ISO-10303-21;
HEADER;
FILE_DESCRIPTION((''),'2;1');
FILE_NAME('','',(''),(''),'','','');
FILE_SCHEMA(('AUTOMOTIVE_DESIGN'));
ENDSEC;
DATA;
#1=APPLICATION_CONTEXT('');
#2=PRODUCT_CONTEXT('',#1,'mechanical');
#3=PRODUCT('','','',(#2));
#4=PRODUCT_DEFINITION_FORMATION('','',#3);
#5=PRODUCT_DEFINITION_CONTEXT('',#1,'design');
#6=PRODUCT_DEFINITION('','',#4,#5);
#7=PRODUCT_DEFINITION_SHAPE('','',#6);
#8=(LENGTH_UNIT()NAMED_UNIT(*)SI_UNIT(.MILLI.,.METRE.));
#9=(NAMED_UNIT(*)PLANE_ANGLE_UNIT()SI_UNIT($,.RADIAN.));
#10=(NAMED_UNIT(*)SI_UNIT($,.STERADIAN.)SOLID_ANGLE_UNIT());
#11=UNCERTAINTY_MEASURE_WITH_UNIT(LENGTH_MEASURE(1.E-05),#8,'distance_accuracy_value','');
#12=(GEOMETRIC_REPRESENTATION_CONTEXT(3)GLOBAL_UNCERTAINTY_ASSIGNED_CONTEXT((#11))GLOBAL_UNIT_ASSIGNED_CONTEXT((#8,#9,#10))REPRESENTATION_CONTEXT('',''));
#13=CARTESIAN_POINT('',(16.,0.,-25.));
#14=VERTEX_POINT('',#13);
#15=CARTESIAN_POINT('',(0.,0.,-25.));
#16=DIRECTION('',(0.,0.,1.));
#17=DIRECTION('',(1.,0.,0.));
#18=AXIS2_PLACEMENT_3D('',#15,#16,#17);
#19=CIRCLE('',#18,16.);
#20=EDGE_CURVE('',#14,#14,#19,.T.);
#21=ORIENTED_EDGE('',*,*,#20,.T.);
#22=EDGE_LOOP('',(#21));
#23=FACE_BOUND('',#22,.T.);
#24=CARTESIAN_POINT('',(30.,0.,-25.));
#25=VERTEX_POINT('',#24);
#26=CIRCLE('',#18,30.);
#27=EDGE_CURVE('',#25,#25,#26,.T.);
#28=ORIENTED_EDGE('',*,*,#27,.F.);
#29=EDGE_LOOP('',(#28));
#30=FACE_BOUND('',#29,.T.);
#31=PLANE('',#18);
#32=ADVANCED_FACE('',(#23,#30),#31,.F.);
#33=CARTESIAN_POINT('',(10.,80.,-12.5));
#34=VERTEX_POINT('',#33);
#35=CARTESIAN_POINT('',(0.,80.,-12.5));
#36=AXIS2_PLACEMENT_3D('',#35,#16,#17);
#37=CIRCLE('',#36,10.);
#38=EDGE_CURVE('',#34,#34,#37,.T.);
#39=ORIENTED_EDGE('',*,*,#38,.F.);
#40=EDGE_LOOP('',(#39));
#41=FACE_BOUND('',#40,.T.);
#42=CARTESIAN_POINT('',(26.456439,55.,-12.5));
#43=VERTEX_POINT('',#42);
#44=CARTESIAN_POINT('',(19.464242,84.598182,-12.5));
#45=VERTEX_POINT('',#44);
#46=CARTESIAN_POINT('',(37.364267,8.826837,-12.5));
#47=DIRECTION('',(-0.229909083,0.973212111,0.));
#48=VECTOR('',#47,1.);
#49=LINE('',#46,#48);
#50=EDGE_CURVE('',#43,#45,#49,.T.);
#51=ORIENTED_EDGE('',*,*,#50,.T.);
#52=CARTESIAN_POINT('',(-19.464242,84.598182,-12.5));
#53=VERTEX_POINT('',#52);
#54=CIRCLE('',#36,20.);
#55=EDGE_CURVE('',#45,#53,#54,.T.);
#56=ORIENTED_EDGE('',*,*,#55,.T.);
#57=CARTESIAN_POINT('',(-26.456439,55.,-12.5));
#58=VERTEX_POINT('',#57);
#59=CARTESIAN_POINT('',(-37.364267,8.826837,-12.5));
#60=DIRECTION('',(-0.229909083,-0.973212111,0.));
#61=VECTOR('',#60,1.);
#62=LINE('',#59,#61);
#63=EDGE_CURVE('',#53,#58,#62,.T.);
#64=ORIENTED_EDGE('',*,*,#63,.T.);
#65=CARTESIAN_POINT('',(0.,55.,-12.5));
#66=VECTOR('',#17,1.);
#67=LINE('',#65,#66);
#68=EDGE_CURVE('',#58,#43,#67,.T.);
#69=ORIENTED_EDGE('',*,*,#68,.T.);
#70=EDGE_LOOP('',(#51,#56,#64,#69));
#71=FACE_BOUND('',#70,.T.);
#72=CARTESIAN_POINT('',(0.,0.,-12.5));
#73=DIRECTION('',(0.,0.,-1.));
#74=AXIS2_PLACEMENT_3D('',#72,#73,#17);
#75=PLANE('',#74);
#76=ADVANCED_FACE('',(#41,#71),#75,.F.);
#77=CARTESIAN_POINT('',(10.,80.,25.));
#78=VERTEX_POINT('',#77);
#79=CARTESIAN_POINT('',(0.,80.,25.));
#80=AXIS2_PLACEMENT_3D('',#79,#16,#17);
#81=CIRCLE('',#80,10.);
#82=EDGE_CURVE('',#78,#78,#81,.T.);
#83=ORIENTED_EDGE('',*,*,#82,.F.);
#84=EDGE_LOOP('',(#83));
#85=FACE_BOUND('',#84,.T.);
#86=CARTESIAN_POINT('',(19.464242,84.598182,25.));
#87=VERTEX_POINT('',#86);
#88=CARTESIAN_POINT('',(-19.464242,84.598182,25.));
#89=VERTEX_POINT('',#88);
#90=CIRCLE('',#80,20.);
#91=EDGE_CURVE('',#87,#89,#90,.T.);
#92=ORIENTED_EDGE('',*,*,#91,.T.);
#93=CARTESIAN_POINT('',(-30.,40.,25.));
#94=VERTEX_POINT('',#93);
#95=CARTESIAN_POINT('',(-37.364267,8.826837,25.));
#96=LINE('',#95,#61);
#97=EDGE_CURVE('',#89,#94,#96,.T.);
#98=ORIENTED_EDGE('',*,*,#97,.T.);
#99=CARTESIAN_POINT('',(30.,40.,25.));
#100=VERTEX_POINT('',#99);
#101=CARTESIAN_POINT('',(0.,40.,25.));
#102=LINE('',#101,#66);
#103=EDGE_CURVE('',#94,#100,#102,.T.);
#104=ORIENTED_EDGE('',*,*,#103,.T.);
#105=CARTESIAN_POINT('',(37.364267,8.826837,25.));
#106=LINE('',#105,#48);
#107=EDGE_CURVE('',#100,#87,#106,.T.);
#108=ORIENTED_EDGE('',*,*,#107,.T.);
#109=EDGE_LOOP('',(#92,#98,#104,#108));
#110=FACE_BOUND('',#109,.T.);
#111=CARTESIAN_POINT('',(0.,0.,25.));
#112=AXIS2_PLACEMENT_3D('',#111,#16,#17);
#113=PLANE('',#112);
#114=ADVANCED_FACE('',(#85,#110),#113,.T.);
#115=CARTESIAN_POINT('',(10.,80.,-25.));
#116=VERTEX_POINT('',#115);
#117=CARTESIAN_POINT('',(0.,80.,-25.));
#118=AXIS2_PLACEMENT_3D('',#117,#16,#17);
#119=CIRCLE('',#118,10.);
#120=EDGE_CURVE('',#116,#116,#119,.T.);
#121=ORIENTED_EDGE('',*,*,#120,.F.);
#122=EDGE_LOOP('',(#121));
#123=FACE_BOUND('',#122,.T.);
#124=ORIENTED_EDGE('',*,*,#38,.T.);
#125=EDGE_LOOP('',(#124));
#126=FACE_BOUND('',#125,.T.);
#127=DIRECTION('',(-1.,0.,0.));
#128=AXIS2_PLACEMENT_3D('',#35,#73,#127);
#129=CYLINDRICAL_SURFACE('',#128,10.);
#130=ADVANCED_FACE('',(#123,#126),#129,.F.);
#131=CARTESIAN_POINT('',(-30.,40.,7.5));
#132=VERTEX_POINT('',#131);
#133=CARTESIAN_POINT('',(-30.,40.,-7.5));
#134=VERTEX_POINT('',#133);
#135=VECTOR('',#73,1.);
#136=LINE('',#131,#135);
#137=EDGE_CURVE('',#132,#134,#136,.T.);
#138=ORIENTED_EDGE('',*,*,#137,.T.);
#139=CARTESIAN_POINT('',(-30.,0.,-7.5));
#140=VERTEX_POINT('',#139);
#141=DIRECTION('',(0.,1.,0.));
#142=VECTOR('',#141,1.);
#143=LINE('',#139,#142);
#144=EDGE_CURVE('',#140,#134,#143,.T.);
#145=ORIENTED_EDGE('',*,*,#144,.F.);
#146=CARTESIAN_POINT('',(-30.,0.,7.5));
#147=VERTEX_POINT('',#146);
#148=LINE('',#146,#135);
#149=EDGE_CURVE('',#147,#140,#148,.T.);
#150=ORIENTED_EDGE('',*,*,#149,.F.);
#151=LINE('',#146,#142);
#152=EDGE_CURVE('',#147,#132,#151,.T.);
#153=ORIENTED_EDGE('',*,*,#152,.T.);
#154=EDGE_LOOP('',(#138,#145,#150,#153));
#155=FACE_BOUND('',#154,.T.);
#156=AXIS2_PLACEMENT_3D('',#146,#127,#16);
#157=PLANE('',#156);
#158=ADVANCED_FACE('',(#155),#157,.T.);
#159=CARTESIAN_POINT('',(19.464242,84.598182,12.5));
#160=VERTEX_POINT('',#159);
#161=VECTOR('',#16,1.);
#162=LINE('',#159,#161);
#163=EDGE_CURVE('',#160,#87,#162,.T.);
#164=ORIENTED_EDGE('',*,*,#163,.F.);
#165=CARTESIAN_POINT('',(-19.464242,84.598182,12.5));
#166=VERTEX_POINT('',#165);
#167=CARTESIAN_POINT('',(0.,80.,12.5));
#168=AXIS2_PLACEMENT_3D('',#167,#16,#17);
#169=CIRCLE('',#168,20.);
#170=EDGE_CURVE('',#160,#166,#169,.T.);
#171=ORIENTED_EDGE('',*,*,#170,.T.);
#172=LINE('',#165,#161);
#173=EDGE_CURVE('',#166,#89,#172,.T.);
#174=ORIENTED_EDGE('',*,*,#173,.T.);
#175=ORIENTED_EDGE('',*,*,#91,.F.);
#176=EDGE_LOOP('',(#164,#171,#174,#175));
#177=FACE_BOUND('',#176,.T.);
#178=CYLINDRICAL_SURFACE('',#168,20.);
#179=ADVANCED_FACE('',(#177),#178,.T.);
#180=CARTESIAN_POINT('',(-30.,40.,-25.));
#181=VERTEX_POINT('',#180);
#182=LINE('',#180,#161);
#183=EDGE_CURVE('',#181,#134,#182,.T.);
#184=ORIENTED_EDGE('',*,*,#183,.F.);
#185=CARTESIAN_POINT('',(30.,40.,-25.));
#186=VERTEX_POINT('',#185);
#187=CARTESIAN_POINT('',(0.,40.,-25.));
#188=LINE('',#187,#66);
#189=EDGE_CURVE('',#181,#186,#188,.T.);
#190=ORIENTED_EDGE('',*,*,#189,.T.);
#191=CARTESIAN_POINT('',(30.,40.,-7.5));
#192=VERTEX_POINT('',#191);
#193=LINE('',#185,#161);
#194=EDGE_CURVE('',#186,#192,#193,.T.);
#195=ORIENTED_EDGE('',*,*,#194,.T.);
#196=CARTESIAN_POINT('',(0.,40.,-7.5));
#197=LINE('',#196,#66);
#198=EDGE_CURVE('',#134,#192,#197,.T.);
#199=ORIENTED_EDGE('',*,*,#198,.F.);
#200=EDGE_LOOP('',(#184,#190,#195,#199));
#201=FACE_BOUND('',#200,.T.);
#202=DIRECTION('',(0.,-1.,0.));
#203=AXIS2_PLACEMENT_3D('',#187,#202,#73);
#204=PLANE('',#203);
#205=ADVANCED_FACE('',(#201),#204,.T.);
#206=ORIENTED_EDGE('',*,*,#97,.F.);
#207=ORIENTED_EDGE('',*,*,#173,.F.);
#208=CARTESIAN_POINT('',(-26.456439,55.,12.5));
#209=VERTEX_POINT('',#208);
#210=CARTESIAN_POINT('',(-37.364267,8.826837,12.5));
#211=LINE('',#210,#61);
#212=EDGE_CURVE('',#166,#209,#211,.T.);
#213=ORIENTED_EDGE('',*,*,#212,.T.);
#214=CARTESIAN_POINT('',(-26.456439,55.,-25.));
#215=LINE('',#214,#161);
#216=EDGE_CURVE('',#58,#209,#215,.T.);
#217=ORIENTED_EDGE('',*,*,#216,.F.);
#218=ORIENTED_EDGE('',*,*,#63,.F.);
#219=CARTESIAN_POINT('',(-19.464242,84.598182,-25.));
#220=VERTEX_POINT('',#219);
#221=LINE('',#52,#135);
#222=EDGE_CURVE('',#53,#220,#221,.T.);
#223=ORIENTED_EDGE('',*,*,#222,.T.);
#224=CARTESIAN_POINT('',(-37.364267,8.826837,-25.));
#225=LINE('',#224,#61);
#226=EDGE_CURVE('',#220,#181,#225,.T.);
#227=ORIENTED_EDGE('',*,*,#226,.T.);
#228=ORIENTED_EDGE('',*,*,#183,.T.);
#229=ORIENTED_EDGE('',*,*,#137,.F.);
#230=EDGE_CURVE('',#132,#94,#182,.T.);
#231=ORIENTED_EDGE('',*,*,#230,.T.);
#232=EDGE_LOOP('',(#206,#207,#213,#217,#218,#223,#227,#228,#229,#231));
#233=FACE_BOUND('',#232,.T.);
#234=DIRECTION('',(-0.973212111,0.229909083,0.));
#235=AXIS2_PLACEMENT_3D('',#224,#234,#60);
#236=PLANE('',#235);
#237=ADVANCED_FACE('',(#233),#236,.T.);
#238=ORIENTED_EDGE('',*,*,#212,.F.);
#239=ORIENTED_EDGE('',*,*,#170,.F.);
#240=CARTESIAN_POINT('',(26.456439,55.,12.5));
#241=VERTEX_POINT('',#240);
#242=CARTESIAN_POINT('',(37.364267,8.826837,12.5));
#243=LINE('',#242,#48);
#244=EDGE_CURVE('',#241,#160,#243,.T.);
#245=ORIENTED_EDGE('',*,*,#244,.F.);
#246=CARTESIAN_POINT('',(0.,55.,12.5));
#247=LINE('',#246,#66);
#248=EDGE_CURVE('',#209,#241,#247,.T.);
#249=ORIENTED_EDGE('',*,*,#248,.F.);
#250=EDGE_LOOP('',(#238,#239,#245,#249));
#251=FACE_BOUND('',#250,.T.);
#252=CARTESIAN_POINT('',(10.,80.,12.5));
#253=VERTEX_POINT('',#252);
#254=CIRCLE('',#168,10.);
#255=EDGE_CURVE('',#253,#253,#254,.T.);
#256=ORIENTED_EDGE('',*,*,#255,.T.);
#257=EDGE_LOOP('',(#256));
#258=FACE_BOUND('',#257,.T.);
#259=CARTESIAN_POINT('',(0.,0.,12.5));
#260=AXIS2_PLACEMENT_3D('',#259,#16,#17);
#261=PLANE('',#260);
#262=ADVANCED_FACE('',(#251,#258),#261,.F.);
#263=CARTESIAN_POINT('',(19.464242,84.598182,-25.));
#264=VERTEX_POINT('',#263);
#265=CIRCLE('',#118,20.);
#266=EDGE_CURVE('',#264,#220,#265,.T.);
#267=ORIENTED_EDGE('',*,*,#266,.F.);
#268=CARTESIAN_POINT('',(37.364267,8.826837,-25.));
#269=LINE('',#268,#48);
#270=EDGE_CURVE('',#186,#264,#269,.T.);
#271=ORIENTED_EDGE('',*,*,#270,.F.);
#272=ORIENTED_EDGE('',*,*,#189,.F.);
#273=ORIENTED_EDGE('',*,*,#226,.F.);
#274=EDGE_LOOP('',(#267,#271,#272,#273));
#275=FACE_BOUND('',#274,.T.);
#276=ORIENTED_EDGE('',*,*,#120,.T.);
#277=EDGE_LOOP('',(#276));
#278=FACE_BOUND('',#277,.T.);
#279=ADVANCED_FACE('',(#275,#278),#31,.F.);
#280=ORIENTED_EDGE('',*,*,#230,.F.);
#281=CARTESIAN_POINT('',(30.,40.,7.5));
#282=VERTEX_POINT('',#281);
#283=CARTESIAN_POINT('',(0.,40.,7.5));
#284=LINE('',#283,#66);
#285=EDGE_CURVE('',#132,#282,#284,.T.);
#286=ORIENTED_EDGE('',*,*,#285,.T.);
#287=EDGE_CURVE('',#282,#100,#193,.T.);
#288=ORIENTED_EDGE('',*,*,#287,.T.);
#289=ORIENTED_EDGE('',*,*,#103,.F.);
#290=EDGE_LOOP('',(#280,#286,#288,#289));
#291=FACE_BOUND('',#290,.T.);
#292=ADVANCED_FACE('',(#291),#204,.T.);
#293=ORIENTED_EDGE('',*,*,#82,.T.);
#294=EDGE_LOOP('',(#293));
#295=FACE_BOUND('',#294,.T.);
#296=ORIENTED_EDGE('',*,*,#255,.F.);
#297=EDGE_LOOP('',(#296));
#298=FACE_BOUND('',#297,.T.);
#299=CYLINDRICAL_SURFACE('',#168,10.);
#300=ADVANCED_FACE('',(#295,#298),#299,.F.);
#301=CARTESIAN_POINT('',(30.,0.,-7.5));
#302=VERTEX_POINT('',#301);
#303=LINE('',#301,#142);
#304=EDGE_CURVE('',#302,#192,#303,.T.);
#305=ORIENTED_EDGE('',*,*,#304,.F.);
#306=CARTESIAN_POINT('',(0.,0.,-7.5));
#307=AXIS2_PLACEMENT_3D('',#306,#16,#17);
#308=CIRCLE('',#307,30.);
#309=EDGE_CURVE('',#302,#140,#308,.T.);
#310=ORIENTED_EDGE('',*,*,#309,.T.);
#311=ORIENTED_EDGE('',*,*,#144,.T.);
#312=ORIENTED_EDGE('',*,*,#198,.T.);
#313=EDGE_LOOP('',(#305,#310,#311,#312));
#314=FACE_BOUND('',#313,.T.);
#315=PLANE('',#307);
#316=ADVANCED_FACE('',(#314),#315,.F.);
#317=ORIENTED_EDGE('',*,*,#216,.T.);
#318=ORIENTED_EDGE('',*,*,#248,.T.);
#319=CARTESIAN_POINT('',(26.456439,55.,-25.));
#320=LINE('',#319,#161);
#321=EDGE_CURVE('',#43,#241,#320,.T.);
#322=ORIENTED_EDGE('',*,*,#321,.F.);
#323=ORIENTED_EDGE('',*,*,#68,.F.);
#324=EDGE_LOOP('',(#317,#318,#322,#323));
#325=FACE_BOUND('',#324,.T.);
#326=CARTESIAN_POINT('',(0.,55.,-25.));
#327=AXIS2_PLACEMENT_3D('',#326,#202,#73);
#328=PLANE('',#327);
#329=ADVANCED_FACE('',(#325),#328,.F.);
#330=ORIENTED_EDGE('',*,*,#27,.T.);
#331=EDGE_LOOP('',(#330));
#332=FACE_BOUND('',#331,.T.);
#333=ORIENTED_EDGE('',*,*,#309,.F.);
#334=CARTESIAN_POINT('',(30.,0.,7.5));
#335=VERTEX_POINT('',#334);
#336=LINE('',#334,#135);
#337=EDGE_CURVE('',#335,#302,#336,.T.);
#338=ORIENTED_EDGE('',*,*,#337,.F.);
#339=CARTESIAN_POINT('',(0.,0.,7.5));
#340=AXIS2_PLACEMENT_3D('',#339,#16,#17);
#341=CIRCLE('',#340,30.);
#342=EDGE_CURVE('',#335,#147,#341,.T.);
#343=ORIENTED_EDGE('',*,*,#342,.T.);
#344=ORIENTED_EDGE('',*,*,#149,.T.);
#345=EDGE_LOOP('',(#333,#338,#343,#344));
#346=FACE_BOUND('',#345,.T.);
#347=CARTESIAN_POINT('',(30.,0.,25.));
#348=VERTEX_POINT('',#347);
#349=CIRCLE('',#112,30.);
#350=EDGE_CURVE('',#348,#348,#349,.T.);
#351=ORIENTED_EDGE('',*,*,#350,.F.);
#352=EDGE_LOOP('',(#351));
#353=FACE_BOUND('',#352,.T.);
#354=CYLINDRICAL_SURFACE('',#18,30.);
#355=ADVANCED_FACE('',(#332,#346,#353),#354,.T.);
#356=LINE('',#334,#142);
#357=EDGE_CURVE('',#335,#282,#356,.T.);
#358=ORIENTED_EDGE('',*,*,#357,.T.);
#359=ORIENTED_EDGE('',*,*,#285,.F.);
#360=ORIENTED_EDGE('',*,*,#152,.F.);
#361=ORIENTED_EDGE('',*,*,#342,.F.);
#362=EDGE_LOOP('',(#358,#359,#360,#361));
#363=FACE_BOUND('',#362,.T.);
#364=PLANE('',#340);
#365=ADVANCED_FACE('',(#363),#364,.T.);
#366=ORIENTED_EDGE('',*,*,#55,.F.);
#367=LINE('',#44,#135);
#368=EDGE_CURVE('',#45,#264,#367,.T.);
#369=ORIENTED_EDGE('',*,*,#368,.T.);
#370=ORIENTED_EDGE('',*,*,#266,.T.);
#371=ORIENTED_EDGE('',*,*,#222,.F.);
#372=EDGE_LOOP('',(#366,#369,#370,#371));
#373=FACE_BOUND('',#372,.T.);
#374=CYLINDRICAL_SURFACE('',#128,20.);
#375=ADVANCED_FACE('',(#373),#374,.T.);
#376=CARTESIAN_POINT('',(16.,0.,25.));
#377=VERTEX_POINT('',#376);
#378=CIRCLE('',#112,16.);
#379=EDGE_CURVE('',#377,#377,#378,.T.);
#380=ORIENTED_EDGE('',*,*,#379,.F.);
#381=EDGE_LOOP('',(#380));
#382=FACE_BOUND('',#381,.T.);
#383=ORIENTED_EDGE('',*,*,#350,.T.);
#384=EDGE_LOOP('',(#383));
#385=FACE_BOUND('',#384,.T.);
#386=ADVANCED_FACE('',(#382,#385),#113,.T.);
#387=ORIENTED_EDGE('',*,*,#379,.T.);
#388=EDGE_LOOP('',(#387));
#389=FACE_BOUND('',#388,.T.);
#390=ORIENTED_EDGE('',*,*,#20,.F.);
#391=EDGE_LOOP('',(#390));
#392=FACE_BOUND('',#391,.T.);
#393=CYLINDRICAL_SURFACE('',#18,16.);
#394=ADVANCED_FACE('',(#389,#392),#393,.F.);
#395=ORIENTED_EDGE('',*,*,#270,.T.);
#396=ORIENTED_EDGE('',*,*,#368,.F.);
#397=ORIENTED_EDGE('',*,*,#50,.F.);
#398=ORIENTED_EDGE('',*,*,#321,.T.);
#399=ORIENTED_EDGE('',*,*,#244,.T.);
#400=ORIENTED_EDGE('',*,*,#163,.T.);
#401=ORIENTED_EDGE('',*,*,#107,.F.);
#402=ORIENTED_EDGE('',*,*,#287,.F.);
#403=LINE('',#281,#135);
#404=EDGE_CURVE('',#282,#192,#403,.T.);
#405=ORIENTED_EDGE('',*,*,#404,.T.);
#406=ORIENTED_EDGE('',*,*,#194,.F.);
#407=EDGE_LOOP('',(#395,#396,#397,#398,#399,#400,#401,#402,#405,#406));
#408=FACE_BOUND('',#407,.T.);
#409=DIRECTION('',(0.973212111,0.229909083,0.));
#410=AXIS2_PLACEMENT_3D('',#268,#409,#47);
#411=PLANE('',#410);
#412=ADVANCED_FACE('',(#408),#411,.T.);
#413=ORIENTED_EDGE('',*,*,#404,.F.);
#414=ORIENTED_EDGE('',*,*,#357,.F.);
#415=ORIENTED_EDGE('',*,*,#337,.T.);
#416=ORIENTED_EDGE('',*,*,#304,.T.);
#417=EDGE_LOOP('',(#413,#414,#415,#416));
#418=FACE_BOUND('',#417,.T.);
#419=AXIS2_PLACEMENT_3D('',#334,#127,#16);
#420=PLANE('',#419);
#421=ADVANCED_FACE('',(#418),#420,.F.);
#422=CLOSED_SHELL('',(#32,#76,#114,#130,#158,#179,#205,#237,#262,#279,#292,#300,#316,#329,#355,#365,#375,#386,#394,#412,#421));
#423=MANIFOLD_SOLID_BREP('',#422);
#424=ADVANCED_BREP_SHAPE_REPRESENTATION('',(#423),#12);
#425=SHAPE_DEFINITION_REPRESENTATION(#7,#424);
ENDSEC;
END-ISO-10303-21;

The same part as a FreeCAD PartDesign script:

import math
import FreeCAD as App
import Part
import Sketcher

V = App.Vector

doc = App.newDocument("Part")
params = doc.addObject("Spreadsheet::Sheet", "Params")
for row, (alias, value) in enumerate([
    ("sketch1_diameter", "60 mm"),
    ("sketch1_diameter2", "32 mm"),
    ("pad1_length", "50 mm"),
    ("sketch2_radius", "30 mm"),
    ("sketch2_height", "40 mm"),
    ("pad2_length", "15 mm"),
    ("sketch3_width", "60 mm"),
    ("pad3_length", "50 mm"),
    ("sketch4_diameter", "20 mm"),
    ("sketch4_radius", "20 mm"),
    ("sketch4_width", "60 mm"),
    ("pad4_length", "12.5 mm"),
], start=1):
    params.set(f"A{row}", alias)
    params.set(f"B{row}", "=" + value)
    params.setAlias(f"B{row}", alias)

body = doc.addObject("PartDesign::Body", "Body")

sketch1 = body.newObject("Sketcher::SketchObject", "Sketch")
sketch1.AttachmentSupport = (doc.getObject("XY_Plane"), [""])
sketch1.MapMode = "FlatFace"
sketch1.addGeometry([
    Part.Circle(V(0, 0, 0), V(0, 0, 1), 30),
    Part.Circle(V(0, 0, 0), V(0, 0, 1), 16),
], False)
sketch1.addConstraint([
    Sketcher.Constraint("Coincident", 0, 3, -1, 1),
    Sketcher.Constraint("Coincident", 1, 3, -1, 1),
    Sketcher.Constraint("Diameter", 0, 60.0),
    Sketcher.Constraint("Diameter", 1, 32.0),
])
sketch1.setExpression("Constraints[2]", "Params.sketch1_diameter")
sketch1.setExpression("Constraints[3]", "Params.sketch1_diameter2")
pad1 = body.newObject("PartDesign::Pad", "Pad")
pad1.Profile = sketch1
pad1.setExpression("Length", "Params.pad1_length")
pad1.Midplane = True

sketch2 = body.newObject("Sketcher::SketchObject", "Sketch001")
sketch2.AttachmentSupport = (doc.getObject("XY_Plane"), [""])
sketch2.MapMode = "FlatFace"
sketch2.addGeometry([
    Part.ArcOfCircle(Part.Circle(V(0, 0, 0), V(0, 0, 1), 30), math.radians(90), math.radians(180)),
    Part.ArcOfCircle(Part.Circle(V(0, 0, 0), V(0, 0, 1), 30), math.radians(0), math.radians(90)),
    Part.LineSegment(V(30, 0, 0), V(30, 40, 0)),
    Part.LineSegment(V(30, 40, 0), V(-30, 40, 0)),
    Part.LineSegment(V(-30, 40, 0), V(-30, 0, 0)),
], False)
sketch2.addConstraint([
    Sketcher.Constraint("Tangent", 0, 1, 1, 2),
    Sketcher.Constraint("Tangent", 1, 1, 2, 1),
    Sketcher.Constraint("Coincident", 2, 2, 3, 1),
    Sketcher.Constraint("Coincident", 3, 2, 4, 1),
    Sketcher.Constraint("Tangent", 4, 2, 0, 2),
    Sketcher.Constraint("Vertical", 2),
    Sketcher.Constraint("Horizontal", 3),
    Sketcher.Constraint("Vertical", 4),
    Sketcher.Constraint("Coincident", 0, 3, -1, 1),
    Sketcher.Constraint("Equal", 0, 1),
    Sketcher.Constraint("PointOnObject", 0, 1, -2),
    Sketcher.Constraint("Radius", 0, 30.0),
    Sketcher.Constraint("DistanceY", 2, 1, 2, 2, 40.0),
])
sketch2.setExpression("Constraints[11]", "Params.sketch2_radius")
sketch2.setExpression("Constraints[12]", "Params.sketch2_height")
pad2 = body.newObject("PartDesign::Pad", "Pad001")
pad2.Profile = sketch2
pad2.setExpression("Length", "Params.pad2_length")
pad2.Midplane = True

sketch3 = body.newObject("Sketcher::SketchObject", "Sketch002")
sketch3.AttachmentSupport = (doc.getObject("XY_Plane"), [""])
sketch3.MapMode = "FlatFace"
sketch3.AttachmentOffset = App.Placement(V(0, 0, 25), App.Rotation())
sketch3.addGeometry([
    Part.LineSegment(V(-30, 40, 0), V(30, 40, 0)),
    Part.LineSegment(V(30, 40, 0), V(26.456439, 55, 0)),
    Part.LineSegment(V(26.456439, 55, 0), V(-26.456439, 55, 0)),
    Part.LineSegment(V(-26.456439, 55, 0), V(-30, 40, 0)),
], False)
sketch3.addConstraint([
    Sketcher.Constraint("Coincident", 0, 2, 1, 1),
    Sketcher.Constraint("Coincident", 1, 2, 2, 1),
    Sketcher.Constraint("Coincident", 2, 2, 3, 1),
    Sketcher.Constraint("Coincident", 3, 2, 0, 1),
    Sketcher.Constraint("Horizontal", 0),
    Sketcher.Constraint("Horizontal", 2),
    Sketcher.Constraint("Equal", 1, 3),
    Sketcher.Constraint("DistanceX", 0, 1, 0, 2, 60.0),
    Sketcher.Constraint("DistanceX", -1, 1, 0, 2, 30.0),
    Sketcher.Constraint("DistanceY", -1, 1, 0, 2, 40.0),
    Sketcher.Constraint("DistanceY", -1, 1, 1, 2, 55.0),
    Sketcher.Constraint("DistanceX", 2, 2, 2, 1, 52.912878),
])
sketch3.setExpression("Constraints[7]", "Params.sketch3_width")
pad3 = body.newObject("PartDesign::Pad", "Pad002")
pad3.Profile = sketch3
pad3.setExpression("Length", "Params.pad3_length")
pad3.Reversed = True

sketch4 = body.newObject("Sketcher::SketchObject", "Sketch003")
sketch4.AttachmentSupport = (doc.getObject("XY_Plane"), [""])
sketch4.MapMode = "FlatFace"
sketch4.AttachmentOffset = App.Placement(V(0, 0, 25), App.Rotation())
sketch4.addGeometry([
    Part.LineSegment(V(-30, 40, 0), V(30, 40, 0)),
    Part.LineSegment(V(30, 40, 0), V(19.464242, 84.598182, 0)),
    Part.ArcOfCircle(Part.Circle(V(0, 80, 0), V(0, 0, 1), 20), math.radians(13.291719), math.radians(166.708281)),
    Part.LineSegment(V(-19.464242, 84.598182, 0), V(-30, 40, 0)),
    Part.Circle(V(0, 80, 0), V(0, 0, 1), 10),
], False)
sketch4.addConstraint([
    Sketcher.Constraint("Coincident", 0, 2, 1, 1),
    Sketcher.Constraint("Tangent", 1, 2, 2, 1),
    Sketcher.Constraint("Tangent", 2, 2, 3, 1),
    Sketcher.Constraint("Coincident", 3, 2, 0, 1),
    Sketcher.Constraint("Horizontal", 0),
    Sketcher.Constraint("Coincident", 4, 3, 2, 3),
    Sketcher.Constraint("Symmetric", 1, 2, 2, 2, -2),
    Sketcher.Constraint("Diameter", 4, 20.0),
    Sketcher.Constraint("Radius", 2, 20.0),
    Sketcher.Constraint("DistanceX", 0, 1, 0, 2, 60.0),
    Sketcher.Constraint("DistanceY", -1, 1, 2, 3, 80.0),
    Sketcher.Constraint("DistanceY", -1, 1, 0, 2, 40.0),
])
sketch4.setExpression("Constraints[7]", "Params.sketch4_diameter")
sketch4.setExpression("Constraints[8]", "Params.sketch4_radius")
sketch4.setExpression("Constraints[9]", "Params.sketch4_width")
pad4 = body.newObject("PartDesign::Pad", "Pad003")
pad4.Profile = sketch4
pad4.setExpression("Length", "Params.pad4_length")
pad4.Reversed = True
doc.recompute()

mirrored = body.newObject("PartDesign::Mirrored", "Mirrored")
mirrored.Originals = [pad4]
mirrored.MirrorPlane = (doc.getObject("XY_Plane"), [""])
body.Tip = mirrored

doc.recompute()
